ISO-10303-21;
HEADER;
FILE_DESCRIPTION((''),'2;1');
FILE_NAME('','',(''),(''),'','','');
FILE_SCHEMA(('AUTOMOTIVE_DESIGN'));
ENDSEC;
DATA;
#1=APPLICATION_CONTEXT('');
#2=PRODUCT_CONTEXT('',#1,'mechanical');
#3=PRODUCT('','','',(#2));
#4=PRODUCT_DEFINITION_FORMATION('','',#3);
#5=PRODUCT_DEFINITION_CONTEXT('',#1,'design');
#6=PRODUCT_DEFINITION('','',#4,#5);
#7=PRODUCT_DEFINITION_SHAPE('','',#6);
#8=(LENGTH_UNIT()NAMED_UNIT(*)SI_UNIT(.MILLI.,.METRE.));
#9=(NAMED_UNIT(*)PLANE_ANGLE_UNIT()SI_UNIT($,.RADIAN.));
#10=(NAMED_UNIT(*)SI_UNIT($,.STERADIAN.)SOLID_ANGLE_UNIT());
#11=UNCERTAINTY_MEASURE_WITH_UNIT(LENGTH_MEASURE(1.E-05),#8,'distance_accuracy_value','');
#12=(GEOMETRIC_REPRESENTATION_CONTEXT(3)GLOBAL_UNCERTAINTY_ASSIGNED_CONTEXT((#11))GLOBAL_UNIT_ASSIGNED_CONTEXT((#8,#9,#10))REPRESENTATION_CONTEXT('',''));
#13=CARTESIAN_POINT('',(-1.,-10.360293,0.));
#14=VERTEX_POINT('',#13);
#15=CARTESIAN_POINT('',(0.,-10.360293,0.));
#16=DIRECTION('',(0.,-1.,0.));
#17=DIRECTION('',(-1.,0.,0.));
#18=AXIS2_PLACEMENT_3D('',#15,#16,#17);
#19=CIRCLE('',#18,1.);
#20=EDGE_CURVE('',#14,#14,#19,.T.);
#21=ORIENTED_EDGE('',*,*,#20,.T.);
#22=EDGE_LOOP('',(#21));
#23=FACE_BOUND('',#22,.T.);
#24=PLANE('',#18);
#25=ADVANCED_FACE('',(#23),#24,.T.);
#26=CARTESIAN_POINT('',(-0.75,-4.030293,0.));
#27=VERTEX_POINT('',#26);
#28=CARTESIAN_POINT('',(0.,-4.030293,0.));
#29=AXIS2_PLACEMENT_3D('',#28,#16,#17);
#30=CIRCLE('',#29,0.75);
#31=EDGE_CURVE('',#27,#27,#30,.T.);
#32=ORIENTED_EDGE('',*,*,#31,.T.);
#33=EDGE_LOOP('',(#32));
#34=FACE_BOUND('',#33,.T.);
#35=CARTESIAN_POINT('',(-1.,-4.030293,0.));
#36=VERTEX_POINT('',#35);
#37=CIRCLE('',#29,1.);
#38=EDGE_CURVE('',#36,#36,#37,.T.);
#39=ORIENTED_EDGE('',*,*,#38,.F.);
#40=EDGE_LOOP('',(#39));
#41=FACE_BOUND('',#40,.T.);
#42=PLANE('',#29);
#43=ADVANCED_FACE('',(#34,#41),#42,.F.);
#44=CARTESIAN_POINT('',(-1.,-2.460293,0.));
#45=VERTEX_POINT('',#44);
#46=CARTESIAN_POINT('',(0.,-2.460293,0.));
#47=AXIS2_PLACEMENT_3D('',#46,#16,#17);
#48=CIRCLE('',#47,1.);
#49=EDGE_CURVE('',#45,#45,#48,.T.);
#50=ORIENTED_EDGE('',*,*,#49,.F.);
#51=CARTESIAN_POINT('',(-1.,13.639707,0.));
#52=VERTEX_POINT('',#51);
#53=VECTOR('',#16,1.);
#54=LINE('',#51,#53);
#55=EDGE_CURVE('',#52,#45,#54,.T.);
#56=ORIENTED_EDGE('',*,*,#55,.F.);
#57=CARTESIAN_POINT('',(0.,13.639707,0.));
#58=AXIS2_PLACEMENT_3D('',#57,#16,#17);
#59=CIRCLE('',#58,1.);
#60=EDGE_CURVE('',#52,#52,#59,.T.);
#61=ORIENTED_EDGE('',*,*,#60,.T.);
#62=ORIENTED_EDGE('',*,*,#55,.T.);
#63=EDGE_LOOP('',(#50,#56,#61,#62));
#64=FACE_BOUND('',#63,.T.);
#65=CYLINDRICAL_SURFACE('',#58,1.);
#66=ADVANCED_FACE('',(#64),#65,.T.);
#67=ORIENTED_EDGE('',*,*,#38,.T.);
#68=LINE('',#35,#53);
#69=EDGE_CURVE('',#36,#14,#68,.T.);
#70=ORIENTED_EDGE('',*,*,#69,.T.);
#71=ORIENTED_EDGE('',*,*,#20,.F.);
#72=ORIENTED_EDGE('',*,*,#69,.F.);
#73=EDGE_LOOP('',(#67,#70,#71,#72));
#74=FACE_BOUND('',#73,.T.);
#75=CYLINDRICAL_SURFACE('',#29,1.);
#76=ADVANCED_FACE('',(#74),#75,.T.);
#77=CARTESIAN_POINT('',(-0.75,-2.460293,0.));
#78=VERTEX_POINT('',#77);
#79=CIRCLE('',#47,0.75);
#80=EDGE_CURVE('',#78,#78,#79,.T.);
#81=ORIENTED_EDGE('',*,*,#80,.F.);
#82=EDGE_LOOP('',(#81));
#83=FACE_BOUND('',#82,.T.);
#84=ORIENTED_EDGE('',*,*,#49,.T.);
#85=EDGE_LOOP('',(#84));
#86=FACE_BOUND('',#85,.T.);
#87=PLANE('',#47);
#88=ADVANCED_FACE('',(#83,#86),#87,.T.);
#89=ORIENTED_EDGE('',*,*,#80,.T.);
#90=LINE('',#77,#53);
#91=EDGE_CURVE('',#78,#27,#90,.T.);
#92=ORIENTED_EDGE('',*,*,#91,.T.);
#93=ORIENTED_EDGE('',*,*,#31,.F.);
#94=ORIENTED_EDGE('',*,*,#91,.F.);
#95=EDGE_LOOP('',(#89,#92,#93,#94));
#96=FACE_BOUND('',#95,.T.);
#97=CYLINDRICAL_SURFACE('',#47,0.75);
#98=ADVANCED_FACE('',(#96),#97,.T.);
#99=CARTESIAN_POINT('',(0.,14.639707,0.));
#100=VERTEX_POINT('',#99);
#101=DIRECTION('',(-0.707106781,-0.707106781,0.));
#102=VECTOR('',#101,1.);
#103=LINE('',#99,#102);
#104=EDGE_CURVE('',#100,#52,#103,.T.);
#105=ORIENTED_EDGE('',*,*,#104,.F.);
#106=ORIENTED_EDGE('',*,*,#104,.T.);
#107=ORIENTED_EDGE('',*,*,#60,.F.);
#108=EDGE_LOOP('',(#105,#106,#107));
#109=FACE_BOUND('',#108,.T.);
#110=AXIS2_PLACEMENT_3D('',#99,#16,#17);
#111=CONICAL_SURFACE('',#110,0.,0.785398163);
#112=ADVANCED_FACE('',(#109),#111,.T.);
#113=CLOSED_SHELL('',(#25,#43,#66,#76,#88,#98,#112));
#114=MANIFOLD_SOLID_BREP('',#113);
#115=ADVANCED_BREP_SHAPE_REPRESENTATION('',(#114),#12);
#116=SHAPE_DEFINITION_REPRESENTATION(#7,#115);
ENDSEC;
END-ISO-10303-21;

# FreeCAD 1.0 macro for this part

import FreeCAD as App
import Part
import Sketcher

V = App.Vector
Q = App.Units.Quantity


def add_polygon(sketch, points):
    """Adds a closed chain of lines whose ends are joined by coincident constraints."""
    first, n = sketch.GeometryCount, len(points)
    for a, b in zip(points, points[1:] + points[:1]):
        sketch.addGeometry(Part.LineSegment(App.Vector(*a, 0), App.Vector(*b, 0)), False)
    for i in range(n):
        sketch.addConstraint(Sketcher.Constraint("Coincident", first + i, 2, first + (i + 1) % n, 1))

doc = App.newDocument("Part")
body = doc.addObject("PartDesign::Body", "Body")

# Sketch on XY plane
sketch1 = doc.addObject("Sketcher::SketchObject", "Sketch")
body.addObject(sketch1)
sketch1.AttachmentSupport = (doc.XY_Plane, [""])
sketch1.MapMode = "FlatFace"
add_polygon(sketch1, [(0, 14.64), (-1, 13.64), (-1, -2.46), (-0.75, -2.46), (-0.75, -4.03), (-1, -4.03), (-1, -10.36), (0, -10.36)])  # lines 0-7
sketch1.addConstraint([
    Sketcher.Constraint("Vertical", 1),
    Sketcher.Constraint("Horizontal", 2),
    Sketcher.Constraint("Vertical", 3),
    Sketcher.Constraint("Horizontal", 4),
    Sketcher.Constraint("Vertical", 5),
    Sketcher.Constraint("Horizontal", 6),
    Sketcher.Constraint("Vertical", 7),
    Sketcher.Constraint("PointOnObject", 6, 2, -2),
    Sketcher.Constraint("Vertical", 1, 2, 4, 2),
    Sketcher.Constraint("DistanceX", 6, 1, 6, 2, 1.0),
    Sketcher.Constraint("DistanceY", 7, 1, 7, 2, 25.0),
    Sketcher.Constraint("Angle", 0, Q("-135 deg")),
    Sketcher.Constraint("DistanceY", 1, 2, 1, 1, 16.1),
    Sketcher.Constraint("DistanceX", 2, 1, 2, 2, 0.25),
    Sketcher.Constraint("DistanceY", 3, 2, 3, 1, 1.57),
    Sketcher.Constraint("DistanceY", -1, 1, 0, 2, 13.639707),
])
revolution = doc.addObject("PartDesign::Revolution", "Revolution")
body.addObject(revolution)
revolution.Profile = sketch1
revolution.ReferenceAxis = (sketch1, ["V_Axis"])
revolution.Angle = 360

doc.recompute()
